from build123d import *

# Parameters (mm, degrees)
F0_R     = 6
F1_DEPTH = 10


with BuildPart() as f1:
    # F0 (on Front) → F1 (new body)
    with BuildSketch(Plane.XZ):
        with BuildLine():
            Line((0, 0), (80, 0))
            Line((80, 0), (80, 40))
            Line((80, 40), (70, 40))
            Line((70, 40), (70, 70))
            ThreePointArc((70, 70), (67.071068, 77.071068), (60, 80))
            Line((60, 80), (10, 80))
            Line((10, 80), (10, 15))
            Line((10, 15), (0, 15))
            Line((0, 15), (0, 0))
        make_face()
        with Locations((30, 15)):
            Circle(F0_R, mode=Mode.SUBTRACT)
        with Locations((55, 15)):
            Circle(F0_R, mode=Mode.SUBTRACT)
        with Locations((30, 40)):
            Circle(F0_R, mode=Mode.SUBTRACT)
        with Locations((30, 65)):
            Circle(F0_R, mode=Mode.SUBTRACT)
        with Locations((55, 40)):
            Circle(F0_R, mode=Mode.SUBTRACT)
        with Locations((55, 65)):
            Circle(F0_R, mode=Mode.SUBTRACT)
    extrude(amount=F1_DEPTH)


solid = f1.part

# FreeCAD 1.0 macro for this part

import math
import FreeCAD as App
import Part
import Sketcher

V = App.Vector

doc = App.newDocument("Part")
body = doc.addObject("PartDesign::Body", "Body")

sketch1 = doc.addObject("Sketcher::SketchObject", "Sketch")
body.addObject(sketch1)
sketch1.AttachmentSupport = (doc.XZ_Plane, [""])
sketch1.MapMode = "FlatFace"
sketch1.addGeometry(Part.LineSegment(V(0, 0, 0), V(80, 0, 0)), False)
sketch1.addGeometry(Part.LineSegment(V(80, 0, 0), V(80, 40, 0)), False)
sketch1.addGeometry(Part.LineSegment(V(80, 40, 0), V(70, 40, 0)), False)
sketch1.addGeometry(Part.LineSegment(V(70, 40, 0), V(70, 70, 0)), False)
sketch1.addGeometry(Part.ArcOfCircle(Part.Circle(V(60, 70, 0), V(0, 0, 1), 10), math.radians(0), math.radians(90)), False)
sketch1.addGeometry(Part.LineSegment(V(60, 80, 0), V(10, 80, 0)), False)
sketch1.addGeometry(Part.LineSegment(V(10, 80, 0), V(10, 15, 0)), False)
sketch1.addGeometry(Part.LineSegment(V(10, 15, 0), V(0, 15, 0)), False)
sketch1.addGeometry(Part.LineSegment(V(0, 15, 0), V(0, 0, 0)), False)
sketch1.addGeometry(Part.Circle(V(30, 15, 0), V(0, 0, 1), 6), False)
sketch1.addGeometry(Part.Circle(V(55, 15, 0), V(0, 0, 1), 6), False)
sketch1.addGeometry(Part.Circle(V(30, 40, 0), V(0, 0, 1), 6), False)
sketch1.addGeometry(Part.Circle(V(30, 65, 0), V(0, 0, 1), 6), False)
sketch1.addGeometry(Part.Circle(V(55, 40, 0), V(0, 0, 1), 6), False)
sketch1.addGeometry(Part.Circle(V(55, 65, 0), V(0, 0, 1), 6), False)
sketch1.addConstraint(Sketcher.Constraint("Coincident", 0, 2, 1, 1))
sketch1.addConstraint(Sketcher.Constraint("Coincident", 1, 2, 2, 1))
sketch1.addConstraint(Sketcher.Constraint("Coincident", 2, 2, 3, 1))
sketch1.addConstraint(Sketcher.Constraint("Tangent", 3, 2, 4, 1))
sketch1.addConstraint(Sketcher.Constraint("Tangent", 4, 2, 5, 1))
sketch1.addConstraint(Sketcher.Constraint("Coincident", 5, 2, 6, 1))
sketch1.addConstraint(Sketcher.Constraint("Coincident", 6, 2, 7, 1))
sketch1.addConstraint(Sketcher.Constraint("Coincident", 7, 2, 8, 1))
sketch1.addConstraint(Sketcher.Constraint("Coincident", 8, 2, 0, 1))
sketch1.addConstraint(Sketcher.Constraint("Horizontal", 0))
sketch1.addConstraint(Sketcher.Constraint("Vertical", 1))
sketch1.addConstraint(Sketcher.Constraint("Horizontal", 2))
sketch1.addConstraint(Sketcher.Constraint("Vertical", 3))
sketch1.addConstraint(Sketcher.Constraint("Horizontal", 5))
sketch1.addConstraint(Sketcher.Constraint("Vertical", 6))
sketch1.addConstraint(Sketcher.Constraint("Horizontal", 7))
sketch1.addConstraint(Sketcher.Constraint("Vertical", 8))
sketch1.addConstraint(Sketcher.Constraint("Coincident", 8, 2, -1, 1))
sketch1.addConstraint(Sketcher.Constraint("Equal", 9, 10))
sketch1.addConstraint(Sketcher.Constraint("Equal", 10, 11))
sketch1.addConstraint(Sketcher.Constraint("Equal", 11, 12))
sketch1.addConstraint(Sketcher.Constraint("Equal", 12, 13))
sketch1.addConstraint(Sketcher.Constraint("Equal", 13, 14))
sketch1.addConstraint(Sketcher.Constraint("Horizontal", 9, 3, 10, 3))
sketch1.addConstraint(Sketcher.Constraint("Horizontal", 11, 3, 13, 3))
sketch1.addConstraint(Sketcher.Constraint("Horizontal", 12, 3, 14, 3))
sketch1.addConstraint(Sketcher.Constraint("Horizontal", 13, 3, 1, 2))
sketch1.addConstraint(Sketcher.Constraint("Horizontal", 10, 3, 6, 2))
sketch1.addConstraint(Sketcher.Constraint("Vertical", 9, 3, 11, 3))
sketch1.addConstraint(Sketcher.Constraint("Vertical", 11, 3, 12, 3))
sketch1.addConstraint(Sketcher.Constraint("Vertical", 10, 3, 13, 3))
sketch1.addConstraint(Sketcher.Constraint("Vertical", 13, 3, 14, 3))
sketch1.addConstraint(Sketcher.Constraint("Equal", 2, 7))
sketch1.addConstraint(Sketcher.Constraint("Diameter", 9, 12.0))
sketch1.addConstraint(Sketcher.Constraint("Radius", 4, 9.999999))
sketch1.addConstraint(Sketcher.Constraint("DistanceX", 0, 1, 0, 2, 80.0))
sketch1.addConstraint(Sketcher.Constraint("DistanceX", 2, 2, 2, 1, 10.0))
sketch1.addConstraint(Sketcher.Constraint("DistanceY", 1, 1, 1, 2, 40.0))
sketch1.addConstraint(Sketcher.Constraint("DistanceY", 3, 1, 3, 2, 30.0))
sketch1.addConstraint(Sketcher.Constraint("DistanceY", 6, 2, 6, 1, 65.0))
sketch1.addConstraint(Sketcher.Constraint("DistanceX", -1, 1, 9, 3, 30.0))
sketch1.addConstraint(Sketcher.Constraint("DistanceX", -1, 1, 10, 3, 55.0))
sketch1.addConstraint(Sketcher.Constraint("DistanceY", -1, 1, 12, 3, 65.0))
pad1 = doc.addObject("PartDesign::Pad", "Pad")
body.addObject(pad1)
pad1.Profile = sketch1
pad1.Length = 10

doc.recompute()
